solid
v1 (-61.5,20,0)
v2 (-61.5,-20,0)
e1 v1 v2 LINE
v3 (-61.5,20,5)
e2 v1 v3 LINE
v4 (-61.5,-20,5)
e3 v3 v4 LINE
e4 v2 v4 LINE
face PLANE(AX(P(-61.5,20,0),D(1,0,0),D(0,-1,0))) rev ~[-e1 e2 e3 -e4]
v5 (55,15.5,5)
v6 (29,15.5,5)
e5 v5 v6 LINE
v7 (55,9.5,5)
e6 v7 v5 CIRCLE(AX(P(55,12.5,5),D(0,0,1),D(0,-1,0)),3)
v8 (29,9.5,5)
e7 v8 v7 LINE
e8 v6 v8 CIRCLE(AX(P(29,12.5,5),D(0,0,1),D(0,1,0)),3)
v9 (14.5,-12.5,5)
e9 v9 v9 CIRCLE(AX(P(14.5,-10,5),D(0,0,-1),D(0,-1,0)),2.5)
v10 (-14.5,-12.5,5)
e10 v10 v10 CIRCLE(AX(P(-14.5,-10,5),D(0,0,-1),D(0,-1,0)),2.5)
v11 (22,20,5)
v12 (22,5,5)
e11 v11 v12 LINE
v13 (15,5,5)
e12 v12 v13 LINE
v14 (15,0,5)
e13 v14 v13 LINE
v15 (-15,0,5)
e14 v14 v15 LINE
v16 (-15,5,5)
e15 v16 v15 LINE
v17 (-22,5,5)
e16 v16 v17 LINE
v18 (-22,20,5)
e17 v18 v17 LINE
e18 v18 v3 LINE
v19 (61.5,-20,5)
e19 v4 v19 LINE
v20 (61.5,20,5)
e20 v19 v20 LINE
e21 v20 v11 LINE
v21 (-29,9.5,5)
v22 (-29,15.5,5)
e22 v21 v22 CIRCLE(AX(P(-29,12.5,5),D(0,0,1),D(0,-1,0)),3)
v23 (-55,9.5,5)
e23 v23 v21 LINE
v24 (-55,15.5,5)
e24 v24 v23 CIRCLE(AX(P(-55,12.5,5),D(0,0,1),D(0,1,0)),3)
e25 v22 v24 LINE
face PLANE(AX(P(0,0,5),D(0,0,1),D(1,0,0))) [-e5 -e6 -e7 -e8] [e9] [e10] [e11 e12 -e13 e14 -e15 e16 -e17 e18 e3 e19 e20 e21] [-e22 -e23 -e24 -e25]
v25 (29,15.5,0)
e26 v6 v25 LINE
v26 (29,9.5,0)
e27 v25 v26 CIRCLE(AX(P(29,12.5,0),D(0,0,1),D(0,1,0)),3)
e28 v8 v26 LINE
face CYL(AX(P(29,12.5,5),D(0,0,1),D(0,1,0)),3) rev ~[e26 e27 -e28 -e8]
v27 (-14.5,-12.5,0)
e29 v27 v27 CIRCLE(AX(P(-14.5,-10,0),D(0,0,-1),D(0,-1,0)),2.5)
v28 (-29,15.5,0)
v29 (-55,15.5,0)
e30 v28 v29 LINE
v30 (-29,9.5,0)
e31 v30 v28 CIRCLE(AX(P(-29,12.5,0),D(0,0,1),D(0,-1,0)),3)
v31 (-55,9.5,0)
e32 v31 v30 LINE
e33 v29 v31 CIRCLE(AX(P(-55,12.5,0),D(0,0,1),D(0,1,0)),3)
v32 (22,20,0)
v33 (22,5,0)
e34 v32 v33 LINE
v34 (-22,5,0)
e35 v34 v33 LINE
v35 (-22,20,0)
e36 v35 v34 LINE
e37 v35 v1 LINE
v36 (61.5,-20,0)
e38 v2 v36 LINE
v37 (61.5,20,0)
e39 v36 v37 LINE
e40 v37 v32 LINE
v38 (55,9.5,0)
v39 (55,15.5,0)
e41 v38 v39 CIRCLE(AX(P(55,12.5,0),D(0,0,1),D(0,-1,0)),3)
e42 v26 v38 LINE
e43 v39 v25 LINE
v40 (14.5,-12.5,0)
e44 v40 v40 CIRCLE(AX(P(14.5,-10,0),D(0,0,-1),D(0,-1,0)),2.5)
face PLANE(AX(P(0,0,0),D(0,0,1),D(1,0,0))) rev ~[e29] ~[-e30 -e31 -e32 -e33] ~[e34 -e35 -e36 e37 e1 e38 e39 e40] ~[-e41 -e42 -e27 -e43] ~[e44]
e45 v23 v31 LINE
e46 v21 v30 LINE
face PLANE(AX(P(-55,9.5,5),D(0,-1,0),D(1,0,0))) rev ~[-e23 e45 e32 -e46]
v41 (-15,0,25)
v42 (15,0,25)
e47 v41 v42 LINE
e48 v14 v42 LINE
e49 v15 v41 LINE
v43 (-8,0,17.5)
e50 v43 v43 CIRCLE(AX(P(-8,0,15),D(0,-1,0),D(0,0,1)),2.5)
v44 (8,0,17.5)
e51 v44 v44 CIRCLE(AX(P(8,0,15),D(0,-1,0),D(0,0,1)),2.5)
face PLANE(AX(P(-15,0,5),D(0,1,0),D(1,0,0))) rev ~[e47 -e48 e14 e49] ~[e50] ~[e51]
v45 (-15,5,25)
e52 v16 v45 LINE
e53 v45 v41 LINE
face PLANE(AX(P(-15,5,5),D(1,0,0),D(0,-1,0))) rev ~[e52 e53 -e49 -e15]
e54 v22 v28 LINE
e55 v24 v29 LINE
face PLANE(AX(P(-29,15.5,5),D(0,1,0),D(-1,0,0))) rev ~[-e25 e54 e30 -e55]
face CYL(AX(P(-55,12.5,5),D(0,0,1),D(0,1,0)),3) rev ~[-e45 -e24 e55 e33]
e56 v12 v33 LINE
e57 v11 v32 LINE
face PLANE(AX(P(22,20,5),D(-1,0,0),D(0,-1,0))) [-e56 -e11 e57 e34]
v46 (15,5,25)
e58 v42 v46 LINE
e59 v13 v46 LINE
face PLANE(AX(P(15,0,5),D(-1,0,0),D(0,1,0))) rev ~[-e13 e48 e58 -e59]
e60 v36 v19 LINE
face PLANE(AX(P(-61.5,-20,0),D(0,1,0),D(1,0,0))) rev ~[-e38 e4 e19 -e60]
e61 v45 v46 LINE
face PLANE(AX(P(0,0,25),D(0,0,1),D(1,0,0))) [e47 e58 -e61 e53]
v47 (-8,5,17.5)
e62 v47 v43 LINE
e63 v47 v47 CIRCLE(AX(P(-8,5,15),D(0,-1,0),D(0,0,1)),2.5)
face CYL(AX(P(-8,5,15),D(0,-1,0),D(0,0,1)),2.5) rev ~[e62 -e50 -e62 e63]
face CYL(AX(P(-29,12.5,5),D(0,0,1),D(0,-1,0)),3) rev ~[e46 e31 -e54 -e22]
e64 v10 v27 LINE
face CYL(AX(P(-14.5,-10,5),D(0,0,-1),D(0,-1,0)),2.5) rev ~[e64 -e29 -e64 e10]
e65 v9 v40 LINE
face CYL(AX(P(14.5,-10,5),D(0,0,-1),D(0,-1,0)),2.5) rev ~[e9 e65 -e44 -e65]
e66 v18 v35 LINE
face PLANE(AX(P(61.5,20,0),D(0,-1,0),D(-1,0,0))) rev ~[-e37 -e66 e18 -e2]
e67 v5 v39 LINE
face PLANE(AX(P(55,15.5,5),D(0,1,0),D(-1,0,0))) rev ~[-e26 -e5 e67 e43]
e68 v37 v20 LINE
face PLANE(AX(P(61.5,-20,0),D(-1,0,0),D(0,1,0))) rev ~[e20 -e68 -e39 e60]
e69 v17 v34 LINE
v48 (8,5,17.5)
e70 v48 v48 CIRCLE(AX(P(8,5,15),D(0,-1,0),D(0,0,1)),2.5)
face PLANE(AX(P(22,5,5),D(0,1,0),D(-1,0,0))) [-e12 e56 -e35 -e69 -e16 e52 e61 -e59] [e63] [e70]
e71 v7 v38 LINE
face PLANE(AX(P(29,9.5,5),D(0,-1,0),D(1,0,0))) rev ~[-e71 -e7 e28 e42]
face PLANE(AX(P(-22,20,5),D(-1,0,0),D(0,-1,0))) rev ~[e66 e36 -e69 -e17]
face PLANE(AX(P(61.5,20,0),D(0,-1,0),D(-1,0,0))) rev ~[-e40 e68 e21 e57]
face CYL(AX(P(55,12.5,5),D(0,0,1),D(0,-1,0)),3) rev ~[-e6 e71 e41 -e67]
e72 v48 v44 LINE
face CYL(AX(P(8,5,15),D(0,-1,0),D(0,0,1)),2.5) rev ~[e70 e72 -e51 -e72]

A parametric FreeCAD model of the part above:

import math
import FreeCAD as App
import Part
import Sketcher
from FreeCAD import Vector
Q = App.Units.Quantity

doc = App.newDocument("Part")
body = doc.addObject("PartDesign::Body", "Body")

# Sketch on XY plane
sketch1 = body.newObject("Sketcher::SketchObject", "Sketch")
sketch1.AttachmentSupport = (doc.getObject("XY_Plane"), [""])
sketch1.MapMode = "FlatFace"
sketch1.addGeometry([
    Part.LineSegment(Vector(-62, 20, 0), Vector(-62, -20, 0)),
    Part.LineSegment(Vector(-62, -20, 0), Vector(62, -20, 0)),
    Part.LineSegment(Vector(62, -20, 0), Vector(62, 20, 0)),
    Part.LineSegment(Vector(62, 20, 0), Vector(-62, 20, 0)),
], False)
sketch1.addConstraint([
    Sketcher.Constraint("Coincident", 0, 2, 1, 1),
    Sketcher.Constraint("Coincident", 1, 2, 2, 1),
    Sketcher.Constraint("Coincident", 2, 2, 3, 1),
    Sketcher.Constraint("Coincident", 3, 2, 0, 1),
    Sketcher.Constraint("Vertical", 0),
    Sketcher.Constraint("Horizontal", 1),
    Sketcher.Constraint("Vertical", 2),
    Sketcher.Constraint("Horizontal", 3),
    Sketcher.Constraint("Symmetric", 0, 2, 2, 2, -1, 1),
    Sketcher.Constraint("DistanceX", 1, 1, 1, 2, Q("123 mm")),
    Sketcher.Constraint("DistanceY", 0, 2, 0, 1, Q("40 mm")),
])
pad1 = body.newObject("PartDesign::Pad", "Pad")
pad1.Profile = sketch1
pad1.Length = 5

# Sketch on XY plane
sketch2 = body.newObject("Sketcher::SketchObject", "Sketch001")
sketch2.AttachmentSupport = (doc.getObject("XY_Plane"), [""])
sketch2.MapMode = "FlatFace"
sketch2.AttachmentOffset = App.Placement(Vector(0, 0, 5), App.Rotation())
sketch2.addGeometry([
    Part.LineSegment(Vector(22, 5, 0), Vector(22, 20, 0)),
    Part.LineSegment(Vector(22, 20, 0), Vector(-22, 20, 0)),
    Part.LineSegment(Vector(-22, 20, 0), Vector(-22, 5, 0)),
    Part.LineSegment(Vector(-22, 5, 0), Vector(22, 5, 0)),
], False)
sketch2.addConstraint([
    Sketcher.Constraint("Coincident", 0, 2, 1, 1),
    Sketcher.Constraint("Coincident", 1, 2, 2, 1),
    Sketcher.Constraint("Coincident", 2, 2, 3, 1),
    Sketcher.Constraint("Coincident", 3, 2, 0, 1),
    Sketcher.Constraint("Vertical", 0),
    Sketcher.Constraint("Horizontal", 1),
    Sketcher.Constraint("Vertical", 2),
    Sketcher.Constraint("Horizontal", 3),
    Sketcher.Constraint("DistanceY", 0, 1, 0, 2, Q("15 mm")),
    Sketcher.Constraint("DistanceX", -1, 1, 0, 2, Q("22 mm")),
    Sketcher.Constraint("DistanceX", 1, 2, -1, 1, Q("22 mm")),
    Sketcher.Constraint("DistanceY", -1, 1, 0, 2, Q("20 mm")),
])
pocket1 = body.newObject("PartDesign::Pocket", "Pocket")
pocket1.Profile = sketch2
pocket1.Length = 5

# Sketch on XY plane
sketch3 = body.newObject("Sketcher::SketchObject", "Sketch002")
sketch3.AttachmentSupport = (doc.getObject("XY_Plane"), [""])
sketch3.MapMode = "FlatFace"
sketch3.AttachmentOffset = App.Placement(Vector(0, 0, 5), App.Rotation())
sketch3.addGeometry([
    Part.ArcOfCircle(Part.Circle(Vector(-29, 12.5, 0), Vector(0, 0, 1), 3), math.radians(-90), math.radians(90)),  # 0
    Part.LineSegment(Vector(-29, 15.5, 0), Vector(-55, 15.5, 0)),  # 1
    Part.ArcOfCircle(Part.Circle(Vector(-55, 12.5, 0), Vector(0, 0, 1), 3), math.radians(90), math.radians(270)),  # 2
    Part.LineSegment(Vector(-55, 9.5, 0), Vector(-29, 9.5, 0)),  # 3
    Part.ArcOfCircle(Part.Circle(Vector(55, 12.5, 0), Vector(0, 0, 1), 3), math.radians(-90), math.radians(90)),  # 4
    Part.LineSegment(Vector(55, 15.5, 0), Vector(29, 15.5, 0)),  # 5
    Part.ArcOfCircle(Part.Circle(Vector(29, 12.5, 0), Vector(0, 0, 1), 3), math.radians(90), math.radians(270)),  # 6
    Part.LineSegment(Vector(29, 9.5, 0), Vector(55, 9.5, 0)),  # 7
], False)
sketch3.addConstraint([
    Sketcher.Constraint("Tangent", 0, 2, 1, 1),
    Sketcher.Constraint("Tangent", 1, 2, 2, 1),
    Sketcher.Constraint("Tangent", 2, 2, 3, 1),
    Sketcher.Constraint("Tangent", 3, 2, 0, 1),
    Sketcher.Constraint("Tangent", 4, 2, 5, 1),
    Sketcher.Constraint("Tangent", 5, 2, 6, 1),
    Sketcher.Constraint("Tangent", 6, 2, 7, 1),
    Sketcher.Constraint("Tangent", 7, 2, 4, 1),
    Sketcher.Constraint("Horizontal", 1),
    Sketcher.Constraint("Horizontal", 3),
    Sketcher.Constraint("Horizontal", 5),
    Sketcher.Constraint("Horizontal", 7),
    Sketcher.Constraint("Equal", 2, 4),
    Sketcher.Constraint("Symmetric", 2, 3, 4, 3, -2),
    Sketcher.Constraint("Equal", 3, 5),
    Sketcher.Constraint("Radius", 0, Q("3 mm")),
    Sketcher.Constraint("DistanceX", 1, 2, 1, 1, Q("26 mm")),
    Sketcher.Constraint("DistanceX", 0, 3, -1, 1, Q("29 mm")),
    Sketcher.Constraint("DistanceY", -1, 1, 0, 3, Q("12.5 mm")),
])
pocket2 = body.newObject("PartDesign::Pocket", "Pocket001")
pocket2.Profile = sketch3
pocket2.Length = 5

# Sketch on XY plane
sketch4 = body.newObject("Sketcher::SketchObject", "Sketch003")
sketch4.AttachmentSupport = (doc.getObject("XY_Plane"), [""])
sketch4.MapMode = "FlatFace"
sketch4.AttachmentOffset = App.Placement(Vector(0, 0, 5), App.Rotation())
sketch4.addGeometry([
    Part.Circle(Vector(14.5, -10, 0), Vector(0, 0, 1), 2.5),
    Part.Circle(Vector(-14.5, -10, 0), Vector(0, 0, 1), 2.5),
], False)
sketch4.addConstraint([
    Sketcher.Constraint("Equal", 0, 1),
    Sketcher.Constraint("Symmetric", 0, 3, 1, 3, -2),
    Sketcher.Constraint("Diameter", 0, Q("5 mm")),
    Sketcher.Constraint("DistanceY", 0, 3, -1, 1, Q("10 mm")),
    Sketcher.Constraint("DistanceX", 1, 3, 0, 3, Q("29 mm")),
])
doc.recompute()
hole = body.newObject("PartDesign::Hole", "Hole")
hole.Profile = sketch4
hole.ThreadType = "None"
hole.Diameter = 5
hole.DepthType = "Dimension"
hole.Depth = 8.8
hole.DrillPoint = "Angled"
hole.DrillPointAngle = 118

# Sketch on XY plane
sketch5 = body.newObject("Sketcher::SketchObject", "Sketch004")
sketch5.AttachmentSupport = (doc.getObject("XY_Plane"), [""])
sketch5.MapMode = "FlatFace"
sketch5.AttachmentOffset = App.Placement(Vector(0, 0, 5), App.Rotation())
sketch5.addGeometry([
    Part.LineSegment(Vector(-15, 5, 0), Vector(-15, 0, 0)),
    Part.LineSegment(Vector(-15, 0, 0), Vector(15, 0, 0)),
    Part.LineSegment(Vector(15, 0, 0), Vector(15, 5, 0)),
    Part.LineSegment(Vector(15, 5, 0), Vector(-15, 5, 0)),
], False)
sketch5.addConstraint([
    Sketcher.Constraint("Coincident", 0, 2, 1, 1),
    Sketcher.Constraint("Coincident", 1, 2, 2, 1),
    Sketcher.Constraint("Coincident", 2, 2, 3, 1),
    Sketcher.Constraint("Coincident", 3, 2, 0, 1),
    Sketcher.Constraint("Vertical", 0),
    Sketcher.Constraint("Horizontal", 1),
    Sketcher.Constraint("Vertical", 2),
    Sketcher.Constraint("Horizontal", 3),
    Sketcher.Constraint("Symmetric", 0, 2, 1, 2, -1, 1),
    Sketcher.Constraint("DistanceX", 0, 2, -1, 1, Q("15 mm")),
    Sketcher.Constraint("DistanceY", 0, 2, 0, 1, Q("5 mm")),
])
pad2 = body.newObject("PartDesign::Pad", "Pad001")
pad2.Profile = sketch5
pad2.Length = 20

# Sketch on XZ plane
sketch6 = body.newObject("Sketcher::SketchObject", "Sketch005")
sketch6.AttachmentSupport = (doc.getObject("XZ_Plane"), [""])
sketch6.MapMode = "FlatFace"
sketch6.AttachmentOffset = App.Placement(Vector(0, 0, -5), App.Rotation())
sketch6.addGeometry([
    Part.Circle(Vector(8, 15, 0), Vector(0, 0, 1), 2.5),
    Part.Circle(Vector(-8, 15, 0), Vector(0, 0, 1), 2.5),
], False)
sketch6.addConstraint([
    Sketcher.Constraint("Equal", 0, 1),
    Sketcher.Constraint("Symmetric", 0, 3, 1, 3, -2),
    Sketcher.Constraint("Diameter", 0, Q("5 mm")),
    Sketcher.Constraint("DistanceX", -1, 1, 0, 3, Q("8 mm")),
    Sketcher.Constraint("DistanceY", -1, 1, 0, 3, Q("15 mm")),
])
doc.recompute()
hole2 = body.newObject("PartDesign::Hole", "Hole001")
hole2.Profile = sketch6
hole2.ThreadType = "None"
hole2.Diameter = 5
hole2.DepthType = "Dimension"
hole2.Depth = 8.8
hole2.DrillPoint = "Angled"
hole2.DrillPointAngle = 118
hole2.Reversed = True

doc.recompute()
